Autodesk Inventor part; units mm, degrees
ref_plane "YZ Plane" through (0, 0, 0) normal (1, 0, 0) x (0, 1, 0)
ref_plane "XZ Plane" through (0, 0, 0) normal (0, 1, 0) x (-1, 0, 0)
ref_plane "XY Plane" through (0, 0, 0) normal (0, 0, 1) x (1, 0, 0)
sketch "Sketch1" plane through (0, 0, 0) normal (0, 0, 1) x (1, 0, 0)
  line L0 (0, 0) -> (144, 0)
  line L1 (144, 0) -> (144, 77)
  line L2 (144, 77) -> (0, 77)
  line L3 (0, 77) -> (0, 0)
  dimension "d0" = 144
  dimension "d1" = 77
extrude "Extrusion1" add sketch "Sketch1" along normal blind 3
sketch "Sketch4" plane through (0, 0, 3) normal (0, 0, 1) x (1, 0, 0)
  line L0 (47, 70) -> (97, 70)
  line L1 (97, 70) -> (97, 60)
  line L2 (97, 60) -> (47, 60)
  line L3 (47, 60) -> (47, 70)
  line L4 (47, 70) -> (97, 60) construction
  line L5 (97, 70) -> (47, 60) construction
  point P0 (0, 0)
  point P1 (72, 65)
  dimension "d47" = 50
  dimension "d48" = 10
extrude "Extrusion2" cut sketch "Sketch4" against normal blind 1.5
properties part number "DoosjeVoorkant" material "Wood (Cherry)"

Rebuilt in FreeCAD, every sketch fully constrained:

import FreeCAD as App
import Part
import Sketcher
Q = App.Units.Quantity


def add_polygon(sketch, points):
    """Adds a closed chain of lines whose ends are joined by coincident constraints."""
    first, n = sketch.GeometryCount, len(points)
    for a, b in zip(points, points[1:] + points[:1]):
        sketch.addGeometry(Part.LineSegment(App.Vector(*a, 0), App.Vector(*b, 0)), False)
    for i in range(n):
        sketch.addConstraint(Sketcher.Constraint("Coincident", first + i, 2, first + (i + 1) % n, 1))

doc = App.newDocument("Part")
params = doc.addObject("Spreadsheet::Sheet", "Params")
for row, (alias, value) in enumerate([
    ("sketch1_width", "144 mm"),
    ("sketch1_height", "77 mm"),
    ("pad1_length", "3 mm"),
    ("sketch2_width", "50 mm"),
    ("sketch2_height", "10 mm"),
    ("pocket1_length", "1.5 mm"),
], start=1):
    params.set(f"A{row}", alias)
    params.set(f"B{row}", "=" + value)
    params.setAlias(f"B{row}", alias)

body = doc.addObject("PartDesign::Body", "Body")

sketch1 = body.newObject("Sketcher::SketchObject", "Sketch")
sketch1.AttachmentSupport = (doc.getObject("XY_Plane"), [""])
sketch1.MapMode = "FlatFace"
add_polygon(sketch1, [(0, 77), (0, 0), (144, 0), (144, 77)])
sketch1.addConstraint([
    Sketcher.Constraint("Vertical", 0),
    Sketcher.Constraint("Horizontal", 1),
    Sketcher.Constraint("Vertical", 2),
    Sketcher.Constraint("Horizontal", 3),
    Sketcher.Constraint("Coincident", 0, 2, -1, 1),
    Sketcher.Constraint("DistanceX", 1, 1, 1, 2, Q("144 mm")),
    Sketcher.Constraint("DistanceY", 0, 2, 0, 1, Q("77 mm")),
])
sketch1.setExpression("Constraints[9]", "Params.sketch1_width")
sketch1.setExpression("Constraints[10]", "Params.sketch1_height")
pad1 = body.newObject("PartDesign::Pad", "Pad")
pad1.Profile = sketch1
pad1.setExpression("Length", "Params.pad1_length")

sketch2 = body.newObject("Sketcher::SketchObject", "Sketch001")
sketch2.AttachmentSupport = (doc.getObject("XY_Plane"), [""])
sketch2.MapMode = "FlatFace"
sketch2.AttachmentOffset = App.Placement(App.Vector(0, 0, 3), App.Rotation())
add_polygon(sketch2, [(97, 70), (47, 70), (47, 60), (97, 60)])
sketch2.addConstraint([
    Sketcher.Constraint("Horizontal", 0),
    Sketcher.Constraint("Vertical", 1),
    Sketcher.Constraint("Horizontal", 2),
    Sketcher.Constraint("Vertical", 3),
    Sketcher.Constraint("DistanceX", 0, 2, 0, 1, Q("50 mm")),
    Sketcher.Constraint("DistanceY", 1, 2, 1, 1, Q("10 mm")),
    Sketcher.Constraint("DistanceX", -1, 1, 0, 2, Q("47 mm")),
    Sketcher.Constraint("DistanceY", -1, 1, 0, 2, Q("70 mm")),
])
sketch2.setExpression("Constraints[8]", "Params.sketch2_width")
sketch2.setExpression("Constraints[9]", "Params.sketch2_height")
pocket1 = body.newObject("PartDesign::Pocket", "Pocket")
pocket1.Profile = sketch2
pocket1.setExpression("Length", "Params.pocket1_length")

doc.recompute()
